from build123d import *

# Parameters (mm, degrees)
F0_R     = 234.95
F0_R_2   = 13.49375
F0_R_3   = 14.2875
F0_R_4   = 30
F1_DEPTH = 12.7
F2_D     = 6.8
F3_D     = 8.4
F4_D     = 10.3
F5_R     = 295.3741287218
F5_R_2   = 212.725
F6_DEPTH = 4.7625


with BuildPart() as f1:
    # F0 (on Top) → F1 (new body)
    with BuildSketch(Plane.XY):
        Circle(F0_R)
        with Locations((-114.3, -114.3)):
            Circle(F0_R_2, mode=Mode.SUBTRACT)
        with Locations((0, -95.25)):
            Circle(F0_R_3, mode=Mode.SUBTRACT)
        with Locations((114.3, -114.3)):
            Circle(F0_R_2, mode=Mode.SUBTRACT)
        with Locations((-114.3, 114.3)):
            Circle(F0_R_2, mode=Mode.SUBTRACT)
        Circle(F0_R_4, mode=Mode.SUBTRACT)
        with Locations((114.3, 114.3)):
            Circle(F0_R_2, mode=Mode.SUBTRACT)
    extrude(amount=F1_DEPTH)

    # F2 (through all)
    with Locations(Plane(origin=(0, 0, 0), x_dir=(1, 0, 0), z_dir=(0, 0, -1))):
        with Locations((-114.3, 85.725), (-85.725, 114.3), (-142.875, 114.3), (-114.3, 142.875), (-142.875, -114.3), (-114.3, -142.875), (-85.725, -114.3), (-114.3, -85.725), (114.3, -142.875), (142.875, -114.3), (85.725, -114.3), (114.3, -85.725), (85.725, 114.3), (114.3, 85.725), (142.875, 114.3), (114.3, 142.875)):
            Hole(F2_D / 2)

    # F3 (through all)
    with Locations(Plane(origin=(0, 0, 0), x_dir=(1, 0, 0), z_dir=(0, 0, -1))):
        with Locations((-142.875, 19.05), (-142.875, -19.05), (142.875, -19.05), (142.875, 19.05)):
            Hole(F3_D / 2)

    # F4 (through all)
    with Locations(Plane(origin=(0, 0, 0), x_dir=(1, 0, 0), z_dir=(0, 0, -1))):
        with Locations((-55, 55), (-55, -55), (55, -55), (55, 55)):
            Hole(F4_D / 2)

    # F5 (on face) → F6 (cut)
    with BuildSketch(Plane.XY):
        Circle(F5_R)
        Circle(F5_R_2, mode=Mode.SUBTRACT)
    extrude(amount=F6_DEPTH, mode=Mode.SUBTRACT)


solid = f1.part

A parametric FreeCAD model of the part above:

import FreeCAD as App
import Part
import Sketcher
from FreeCAD import Vector
Q = App.Units.Quantity

doc = App.newDocument("Part")
body = doc.addObject("PartDesign::Body", "Body")

# Sketch on XY plane
sketch1 = body.newObject("Sketcher::SketchObject", "Sketch")
sketch1.AttachmentSupport = (doc.getObject("XY_Plane"), [""])
sketch1.MapMode = "FlatFace"
sketch1.addGeometry([
    Part.Circle(Vector(0, 0, 0), Vector(0, 0, 1), 234.95),  # 0
    Part.Circle(Vector(-114.3, -114.3, 0), Vector(0, 0, 1), 13.49375),  # 1
    Part.Circle(Vector(0, -95.25, 0), Vector(0, 0, 1), 14.2875),  # 2
    Part.Circle(Vector(114.3, -114.3, 0), Vector(0, 0, 1), 13.49375),  # 3
    Part.Circle(Vector(0, 0, 0), Vector(0, 0, 1), 30),  # 4
    Part.Circle(Vector(-114.3, 114.3, 0), Vector(0, 0, 1), 13.49375),  # 5
    Part.Circle(Vector(114.3, 114.3, 0), Vector(0, 0, 1), 13.49375),  # 6
], False)
sketch1.addConstraint([
    Sketcher.Constraint("Coincident", 0, 3, -1, 1),
    Sketcher.Constraint("Coincident", 4, 3, -1, 1),
    Sketcher.Constraint("Equal", 1, 3),
    Sketcher.Constraint("Equal", 3, 5),
    Sketcher.Constraint("Equal", 5, 6),
    Sketcher.Constraint("Symmetric", 3, 3, 5, 3, -1, 1),
    Sketcher.Constraint("Symmetric", 1, 3, 6, 3, -1, 1),
    Sketcher.Constraint("Symmetric", 1, 3, 3, 3, -2),
    Sketcher.Constraint("PointOnObject", 2, 3, -2),
    Sketcher.Constraint("Diameter", 0, Q("18.5 in")),
    Sketcher.Constraint("Diameter", 1, Q("1.0625 in")),
    Sketcher.Constraint("Diameter", 2, Q("1.125 in")),
    Sketcher.Constraint("DistanceX", 1, 3, 3, 3, Q("9 in")),
    Sketcher.Constraint("DistanceY", 1, 3, 5, 3, Q("9 in")),
    Sketcher.Constraint("Diameter", 4, 60.0),
    Sketcher.Constraint("DistanceY", 2, 3, -1, 1, Q("3.75 in")),
])
pad1 = body.newObject("PartDesign::Pad", "Pad")
pad1.Profile = sketch1
pad1.Length = Q("0.5 in")

# Sketch on XY plane
sketch2 = body.newObject("Sketcher::SketchObject", "Sketch001")
sketch2.AttachmentSupport = (doc.getObject("XY_Plane"), [""])
sketch2.MapMode = "FlatFace"
sketch2.addGeometry([
    Part.Circle(Vector(-114.3, -85.725, 0), Vector(0, 0, 1), 3.4),  # 0
    Part.Circle(Vector(-85.725, -114.3, 0), Vector(0, 0, 1), 3.4),  # 1
    Part.Circle(Vector(-142.875, -114.3, 0), Vector(0, 0, 1), 3.4),  # 2
    Part.Circle(Vector(-114.3, -142.875, 0), Vector(0, 0, 1), 3.4),  # 3
    Part.Circle(Vector(-142.875, 114.3, 0), Vector(0, 0, 1), 3.4),  # 4
    Part.Circle(Vector(-114.3, 142.875, 0), Vector(0, 0, 1), 3.4),  # 5
    Part.Circle(Vector(-85.725, 114.3, 0), Vector(0, 0, 1), 3.4),  # 6
    Part.Circle(Vector(-114.3, 85.725, 0), Vector(0, 0, 1), 3.4),  # 7
    Part.Circle(Vector(114.3, 142.875, 0), Vector(0, 0, 1), 3.4),  # 8
    Part.Circle(Vector(142.875, 114.3, 0), Vector(0, 0, 1), 3.4),  # 9
    Part.Circle(Vector(85.725, 114.3, 0), Vector(0, 0, 1), 3.4),  # 10
    Part.Circle(Vector(114.3, 85.725, 0), Vector(0, 0, 1), 3.4),  # 11
    Part.Circle(Vector(85.725, -114.3, 0), Vector(0, 0, 1), 3.4),  # 12
    Part.Circle(Vector(114.3, -85.725, 0), Vector(0, 0, 1), 3.4),  # 13
    Part.Circle(Vector(142.875, -114.3, 0), Vector(0, 0, 1), 3.4),  # 14
    Part.Circle(Vector(114.3, -142.875, 0), Vector(0, 0, 1), 3.4),  # 15
], False)
sketch2.addConstraint([
    Sketcher.Constraint("Equal", 0, 1),
    Sketcher.Constraint("Equal", 1, 2),
    Sketcher.Constraint("Equal", 2, 3),
    Sketcher.Constraint("Equal", 3, 4),
    Sketcher.Constraint("Equal", 4, 5),
    Sketcher.Constraint("Equal", 5, 6),
    Sketcher.Constraint("Equal", 6, 7),
    Sketcher.Constraint("Equal", 7, 8),
    Sketcher.Constraint("Equal", 8, 9),
    Sketcher.Constraint("Equal", 9, 10),
    Sketcher.Constraint("Equal", 10, 11),
    Sketcher.Constraint("Equal", 11, 12),
    Sketcher.Constraint("Equal", 12, 13),
    Sketcher.Constraint("Equal", 13, 14),
    Sketcher.Constraint("Equal", 14, 15),
    Sketcher.Constraint("Symmetric", 3, 3, 8, 3, -1, 1),
    Sketcher.Constraint("Symmetric", 2, 3, 9, 3, -1, 1),
    Sketcher.Constraint("Symmetric", 1, 3, 10, 3, -1, 1),
    Sketcher.Constraint("Symmetric", 0, 3, 11, 3, -1, 1),
    Sketcher.Constraint("Symmetric", 6, 3, 12, 3, -1, 1),
    Sketcher.Constraint("Symmetric", 7, 3, 13, 3, -1, 1),
    Sketcher.Constraint("Symmetric", 4, 3, 14, 3, -1, 1),
    Sketcher.Constraint("Symmetric", 5, 3, 15, 3, -1, 1),
    Sketcher.Constraint("Symmetric", 5, 3, 8, 3, -2),
    Sketcher.Constraint("Symmetric", 4, 3, 9, 3, -2),
    Sketcher.Constraint("Symmetric", 6, 3, 10, 3, -2),
    Sketcher.Constraint("Symmetric", 7, 3, 11, 3, -2),
    Sketcher.Constraint("Horizontal", 1, 3, 2, 3),
    Sketcher.Constraint("Vertical", 0, 3, 3, 3),
    Sketcher.Constraint("DistanceY", 2, 3, 4, 3, Q("9 in")),
    Sketcher.Constraint("DistanceY", 0, 3, 5, 3, Q("9 in")),
    Sketcher.Constraint("DistanceX", 5, 3, 8, 3, Q("9 in")),
    Sketcher.Constraint("DistanceX", 6, 3, 9, 3, Q("9 in")),
    Sketcher.Constraint("Diameter", 0, 6.8),
    Sketcher.Constraint("DistanceX", 2, 3, 1, 3, Q("2.25 in")),
    Sketcher.Constraint("DistanceY", 3, 3, 0, 3, Q("2.25 in")),
])
doc.recompute()
hole = body.newObject("PartDesign::Hole", "Hole")
hole.Profile = sketch2
hole.ThreadType = "None"
hole.Diameter = 6.8
hole.DepthType = "ThroughAll"
hole.Reversed = True

# Sketch on XY plane
sketch3 = body.newObject("Sketcher::SketchObject", "Sketch002")
sketch3.AttachmentSupport = (doc.getObject("XY_Plane"), [""])
sketch3.MapMode = "FlatFace"
sketch3.addGeometry([
    Part.Circle(Vector(-142.875, -19.05, 0), Vector(0, 0, 1), 4.2),
    Part.Circle(Vector(-142.875, 19.05, 0), Vector(0, 0, 1), 4.2),
    Part.Circle(Vector(142.875, 19.05, 0), Vector(0, 0, 1), 4.2),
    Part.Circle(Vector(142.875, -19.05, 0), Vector(0, 0, 1), 4.2),
], False)
sketch3.addConstraint([
    Sketcher.Constraint("Equal", 0, 1),
    Sketcher.Constraint("Equal", 1, 2),
    Sketcher.Constraint("Equal", 2, 3),
    Sketcher.Constraint("Symmetric", 0, 3, 2, 3, -1, 1),
    Sketcher.Constraint("Symmetric", 1, 3, 3, 3, -1, 1),
    Sketcher.Constraint("Symmetric", 1, 3, 2, 3, -2),
    Sketcher.Constraint("DistanceY", 0, 3, 1, 3, Q("1.5 in")),
    Sketcher.Constraint("Diameter", 0, 8.4),
    Sketcher.Constraint("DistanceX", 1, 3, 2, 3, Q("11.25 in")),
])
doc.recompute()
hole2 = body.newObject("PartDesign::Hole", "Hole001")
hole2.Profile = sketch3
hole2.ThreadType = "None"
hole2.Diameter = 8.4
hole2.DepthType = "ThroughAll"
hole2.Reversed = True

# Sketch on XY plane
sketch4 = body.newObject("Sketcher::SketchObject", "Sketch003")
sketch4.AttachmentSupport = (doc.getObject("XY_Plane"), [""])
sketch4.MapMode = "FlatFace"
sketch4.addGeometry([
    Part.Circle(Vector(-55, -55, 0), Vector(0, 0, 1), 5.15),
    Part.Circle(Vector(-55, 55, 0), Vector(0, 0, 1), 5.15),
    Part.Circle(Vector(55, 55, 0), Vector(0, 0, 1), 5.15),
    Part.Circle(Vector(55, -55, 0), Vector(0, 0, 1), 5.15),
], False)
sketch4.addConstraint([
    Sketcher.Constraint("Equal", 0, 1),
    Sketcher.Constraint("Equal", 1, 2),
    Sketcher.Constraint("Equal", 2, 3),
    Sketcher.Constraint("Symmetric", 0, 3, 2, 3, -1, 1),
    Sketcher.Constraint("Symmetric", 1, 3, 3, 3, -1, 1),
    Sketcher.Constraint("Symmetric", 1, 3, 2, 3, -2),
    Sketcher.Constraint("Diameter", 0, 10.3),
    Sketcher.Constraint("DistanceX", 0, 3, -1, 1, 55.0),
    Sketcher.Constraint("DistanceY", 0, 3, -1, 1, 55.0),
])
doc.recompute()
hole3 = body.newObject("PartDesign::Hole", "Hole002")
hole3.Profile = sketch4
hole3.ThreadType = "None"
hole3.Diameter = 10.3
hole3.DepthType = "ThroughAll"
hole3.Reversed = True

# Sketch on XY plane
sketch5 = body.newObject("Sketcher::SketchObject", "Sketch004")
sketch5.AttachmentSupport = (doc.getObject("XY_Plane"), [""])
sketch5.MapMode = "FlatFace"
sketch5.addGeometry([
    Part.Circle(Vector(0, 0, 0), Vector(0, 0, 1), 295.374129),
    Part.Circle(Vector(0, 0, 0), Vector(0, 0, 1), 212.725),
], False)
sketch5.addConstraint([
    Sketcher.Constraint("Coincident", 0, 3, -1, 1),
    Sketcher.Constraint("Coincident", 1, 3, -1, 1),
    Sketcher.Constraint("Diameter", 1, Q("16.75 in")),
    Sketcher.Constraint("Diameter", 0, 590.748257),
])
pocket1 = body.newObject("PartDesign::Pocket", "Pocket")
pocket1.Profile = sketch5
pocket1.Length = Q("0.1875 in")
pocket1.Reversed = True

doc.recompute()
